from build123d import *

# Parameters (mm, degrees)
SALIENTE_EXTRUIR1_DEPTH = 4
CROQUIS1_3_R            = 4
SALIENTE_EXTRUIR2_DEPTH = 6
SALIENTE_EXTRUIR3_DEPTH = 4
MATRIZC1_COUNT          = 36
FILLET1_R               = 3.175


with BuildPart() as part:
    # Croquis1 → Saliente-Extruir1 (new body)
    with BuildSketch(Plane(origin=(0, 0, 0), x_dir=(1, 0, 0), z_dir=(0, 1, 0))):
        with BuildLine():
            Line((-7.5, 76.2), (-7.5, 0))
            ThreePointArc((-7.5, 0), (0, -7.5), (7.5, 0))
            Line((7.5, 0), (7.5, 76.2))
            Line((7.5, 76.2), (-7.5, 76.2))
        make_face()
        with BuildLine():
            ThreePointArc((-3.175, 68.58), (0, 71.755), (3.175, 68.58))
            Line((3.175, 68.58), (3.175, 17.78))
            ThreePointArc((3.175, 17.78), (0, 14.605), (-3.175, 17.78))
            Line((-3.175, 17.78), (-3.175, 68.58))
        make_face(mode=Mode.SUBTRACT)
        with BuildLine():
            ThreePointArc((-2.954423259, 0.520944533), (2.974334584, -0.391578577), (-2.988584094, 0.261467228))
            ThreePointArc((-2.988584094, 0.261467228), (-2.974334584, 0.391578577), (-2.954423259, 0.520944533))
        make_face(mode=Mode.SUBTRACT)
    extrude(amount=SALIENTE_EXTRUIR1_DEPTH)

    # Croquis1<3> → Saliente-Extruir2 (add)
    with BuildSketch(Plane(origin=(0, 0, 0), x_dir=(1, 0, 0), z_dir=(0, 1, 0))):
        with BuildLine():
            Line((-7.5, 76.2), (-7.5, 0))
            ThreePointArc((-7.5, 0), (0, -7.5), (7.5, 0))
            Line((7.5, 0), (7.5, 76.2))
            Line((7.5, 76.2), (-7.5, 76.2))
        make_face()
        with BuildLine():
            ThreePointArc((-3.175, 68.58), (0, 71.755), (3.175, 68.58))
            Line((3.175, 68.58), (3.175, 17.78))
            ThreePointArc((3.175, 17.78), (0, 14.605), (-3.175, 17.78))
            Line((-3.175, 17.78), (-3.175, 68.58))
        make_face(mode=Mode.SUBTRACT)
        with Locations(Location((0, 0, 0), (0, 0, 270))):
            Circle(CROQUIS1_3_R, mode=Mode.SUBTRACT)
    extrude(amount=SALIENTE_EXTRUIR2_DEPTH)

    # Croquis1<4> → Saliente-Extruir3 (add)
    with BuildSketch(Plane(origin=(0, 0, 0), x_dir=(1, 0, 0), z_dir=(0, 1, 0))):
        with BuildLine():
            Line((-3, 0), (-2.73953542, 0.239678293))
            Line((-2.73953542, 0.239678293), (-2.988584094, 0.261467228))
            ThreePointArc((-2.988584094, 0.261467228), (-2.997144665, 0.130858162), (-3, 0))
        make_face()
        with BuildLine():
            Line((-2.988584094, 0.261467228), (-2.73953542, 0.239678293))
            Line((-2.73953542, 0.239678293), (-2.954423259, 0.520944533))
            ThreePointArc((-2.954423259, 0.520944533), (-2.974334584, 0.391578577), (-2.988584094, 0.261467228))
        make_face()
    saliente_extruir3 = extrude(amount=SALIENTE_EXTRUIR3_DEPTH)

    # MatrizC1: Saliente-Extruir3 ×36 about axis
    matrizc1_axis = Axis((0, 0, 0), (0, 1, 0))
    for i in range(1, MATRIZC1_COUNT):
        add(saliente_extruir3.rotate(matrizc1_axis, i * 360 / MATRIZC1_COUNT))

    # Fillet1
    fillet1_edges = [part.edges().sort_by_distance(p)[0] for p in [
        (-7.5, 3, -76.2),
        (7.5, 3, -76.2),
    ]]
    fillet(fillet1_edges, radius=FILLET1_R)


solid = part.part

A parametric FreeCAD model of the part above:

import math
import FreeCAD as App
import Part
import Sketcher

V = App.Vector


def edges_at(feature, points):
    """Names of the edges that pass closest to the given points."""
    edges = feature.Shape.Edges
    near = lambda p: min(range(len(edges)), key=lambda i: edges[i].distToShape(Part.Vertex(*p))[0])
    return sorted({f"Edge{near(p) + 1}" for p in points})

doc = App.newDocument("Part")
body = doc.addObject("PartDesign::Body", "Body")

sketch1 = body.newObject("Sketcher::SketchObject", "Sketch")
sketch1.AttachmentSupport = (doc.getObject("XZ_Plane"), [""])
sketch1.MapMode = "FlatFace"
sketch1.addGeometry([
    Part.LineSegment(V(-7.5, -76.2, 0), V(-7.5, 0, 0)),
    Part.ArcOfCircle(Part.Circle(V(0, 0, 0), V(0, 0, 1), 7.5), math.radians(0), math.radians(180)),
    Part.LineSegment(V(7.5, 0, 0), V(7.5, -76.2, 0)),
    Part.LineSegment(V(7.5, -76.2, 0), V(-7.5, -76.2, 0)),
    Part.ArcOfCircle(Part.Circle(V(0, 0, 0), V(0, 0, 1), 3), math.radians(-175), math.radians(-170)),
    Part.ArcOfCircle(Part.Circle(V(0, 0, 0), V(0, 0, 1), 3), math.radians(-170), math.radians(185)),
    Part.LineSegment(V(-3.17, -17.78, 0), V(-3.17, -68.58, 0)),
    Part.ArcOfCircle(Part.Circle(V(0, -68.58, 0), V(0, 0, 1), 3.17), math.radians(180), math.radians(360)),
    Part.LineSegment(V(3.17, -68.58, 0), V(3.17, -17.78, 0)),
    Part.ArcOfCircle(Part.Circle(V(0, -17.78, 0), V(0, 0, 1), 3.17), math.radians(0), math.radians(180)),
], False)
sketch1.addConstraint([
    Sketcher.Constraint("Tangent", 0, 2, 1, 2),
    Sketcher.Constraint("Tangent", 1, 1, 2, 1),
    Sketcher.Constraint("Coincident", 2, 2, 3, 1),
    Sketcher.Constraint("Coincident", 3, 2, 0, 1),
    Sketcher.Constraint("Tangent", 4, 1, 5, 2),
    Sketcher.Constraint("Coincident", 5, 1, 4, 2),
    Sketcher.Constraint("Tangent", 6, 2, 7, 1),
    Sketcher.Constraint("Tangent", 7, 2, 8, 1),
    Sketcher.Constraint("Tangent", 8, 2, 9, 1),
    Sketcher.Constraint("Tangent", 9, 2, 6, 1),
    Sketcher.Constraint("Vertical", 0),
    Sketcher.Constraint("Vertical", 2),
    Sketcher.Constraint("Horizontal", 3),
    Sketcher.Constraint("Vertical", 6),
    Sketcher.Constraint("Vertical", 8),
    Sketcher.Constraint("Coincident", 1, 3, -1, 1),
    Sketcher.Constraint("Coincident", 4, 3, -1, 1),
    Sketcher.Constraint("PointOnObject", 7, 3, -2),
    Sketcher.Constraint("Radius", 4, 3.0),
    Sketcher.Constraint("Radius", 1, 7.5),
    Sketcher.Constraint("DistanceY", 0, 1, 0, 2, 76.2),
    Sketcher.Constraint("DistanceY", 6, 2, 6, 1, 50.8),
    Sketcher.Constraint("Radius", 7, 3.175),
    Sketcher.Constraint("DistanceY", 7, 3, -1, 1, 68.58),
    Sketcher.Constraint("DistanceX", 4, 1, 5, 1, 0.034161),
    Sketcher.Constraint("DistanceX", 4, 1, -1, 1, 2.988584),
])
pad1 = body.newObject("PartDesign::Pad", "Pad")
pad1.Profile = sketch1
pad1.Length = 4
pad1.Reversed = True

sketch2 = body.newObject("Sketcher::SketchObject", "Sketch001")
sketch2.AttachmentSupport = (doc.getObject("XZ_Plane"), [""])
sketch2.MapMode = "FlatFace"
sketch2.addGeometry([
    Part.LineSegment(V(-7.5, -76.2, 0), V(-7.5, 0, 0)),
    Part.ArcOfCircle(Part.Circle(V(0, 0, 0), V(0, 0, 1), 7.5), math.radians(0), math.radians(180)),
    Part.LineSegment(V(7.5, 0, 0), V(7.5, -76.2, 0)),
    Part.LineSegment(V(7.5, -76.2, 0), V(-7.5, -76.2, 0)),
    Part.Circle(V(0, 0, 0), V(0, 0, 1), 4),
    Part.LineSegment(V(-3.2, -17.8, 0), V(-3.2, -68.6, 0)),
    Part.ArcOfCircle(Part.Circle(V(0, -68.6, 0), V(0, 0, 1), 3.2), math.radians(180), math.radians(360)),
    Part.LineSegment(V(3.2, -68.6, 0), V(3.2, -17.8, 0)),
    Part.ArcOfCircle(Part.Circle(V(0, -17.8, 0), V(0, 0, 1), 3.2), math.radians(0), math.radians(180)),
], False)
sketch2.addConstraint([
    Sketcher.Constraint("Tangent", 0, 2, 1, 2),
    Sketcher.Constraint("Tangent", 1, 1, 2, 1),
    Sketcher.Constraint("Coincident", 2, 2, 3, 1),
    Sketcher.Constraint("Coincident", 3, 2, 0, 1),
    Sketcher.Constraint("Tangent", 5, 2, 6, 1),
    Sketcher.Constraint("Tangent", 6, 2, 7, 1),
    Sketcher.Constraint("Tangent", 7, 2, 8, 1),
    Sketcher.Constraint("Tangent", 8, 2, 5, 1),
    Sketcher.Constraint("Vertical", 0),
    Sketcher.Constraint("Vertical", 2),
    Sketcher.Constraint("Horizontal", 3),
    Sketcher.Constraint("Vertical", 5),
    Sketcher.Constraint("Vertical", 7),
    Sketcher.Constraint("Coincident", 1, 3, -1, 1),
    Sketcher.Constraint("Coincident", 4, 3, -1, 1),
    Sketcher.Constraint("PointOnObject", 6, 3, -2),
    Sketcher.Constraint("Diameter", 4, 8.0),
    Sketcher.Constraint("Radius", 1, 7.5),
    Sketcher.Constraint("DistanceY", 0, 1, 0, 2, 76.2),
    Sketcher.Constraint("DistanceY", 5, 2, 5, 1, 50.8),
    Sketcher.Constraint("Radius", 6, 3.175),
    Sketcher.Constraint("DistanceY", 6, 3, -1, 1, 68.58),
])
pad2 = body.newObject("PartDesign::Pad", "Pad001")
pad2.Profile = sketch2
pad2.Length = 6
pad2.Reversed = True

sketch3 = body.newObject("Sketcher::SketchObject", "Sketch002")
sketch3.AttachmentSupport = (doc.getObject("XZ_Plane"), [""])
sketch3.MapMode = "FlatFace"
sketch3.addGeometry([
    Part.LineSegment(V(-3, 0, 0), V(-2.74, -0.24, 0)),
    Part.LineSegment(V(-2.74, -0.24, 0), V(-2.95, -0.52, 0)),
    Part.ArcOfCircle(Part.Circle(V(0, 0, 0), V(0, 0, 1), 3), math.radians(-175), math.radians(-170)),
    Part.ArcOfCircle(Part.Circle(V(0, 0, 0), V(0, 0, 1), 3), math.radians(180), math.radians(185)),
], False)
sketch3.addConstraint([
    Sketcher.Constraint("Coincident", 0, 2, 1, 1),
    Sketcher.Constraint("Coincident", 1, 2, 2, 2),
    Sketcher.Constraint("Tangent", 2, 1, 3, 2),
    Sketcher.Constraint("Coincident", 3, 1, 0, 1),
    Sketcher.Constraint("Coincident", 2, 3, -1, 1),
    Sketcher.Constraint("Equal", 2, 3),
    Sketcher.Constraint("PointOnObject", 3, 1, -1),
    Sketcher.Constraint("Equal", 0, 1),
    Sketcher.Constraint("Radius", 2, 3.0),
    Sketcher.Constraint("Distance", 0, 0.35396),
    Sketcher.Constraint("DistanceY", 0, 2, -1, 1, 0.239678),
    Sketcher.Constraint("DistanceX", 2, 1, 0, 2, 0.249049),
])
pad3 = body.newObject("PartDesign::Pad", "Pad002")
pad3.Profile = sketch3
pad3.Length = 4
pad3.Reversed = True
doc.recompute()

polarpattern = body.newObject("PartDesign::PolarPattern", "PolarPattern")
polarpattern.Originals = [pad3]
polarpattern.Axis = (doc.getObject("Y_Axis"), [""])
polarpattern.Angle = 360
polarpattern.Occurrences = 36
body.Tip = polarpattern
doc.recompute()

fillet = body.newObject("PartDesign::Fillet", "Fillet")
fillet.Base = (polarpattern, edges_at(polarpattern, [(-7.5, 3, -76.2), (7.5, 3, -76.2)]))
fillet.Radius = 3.175

doc.recompute()
